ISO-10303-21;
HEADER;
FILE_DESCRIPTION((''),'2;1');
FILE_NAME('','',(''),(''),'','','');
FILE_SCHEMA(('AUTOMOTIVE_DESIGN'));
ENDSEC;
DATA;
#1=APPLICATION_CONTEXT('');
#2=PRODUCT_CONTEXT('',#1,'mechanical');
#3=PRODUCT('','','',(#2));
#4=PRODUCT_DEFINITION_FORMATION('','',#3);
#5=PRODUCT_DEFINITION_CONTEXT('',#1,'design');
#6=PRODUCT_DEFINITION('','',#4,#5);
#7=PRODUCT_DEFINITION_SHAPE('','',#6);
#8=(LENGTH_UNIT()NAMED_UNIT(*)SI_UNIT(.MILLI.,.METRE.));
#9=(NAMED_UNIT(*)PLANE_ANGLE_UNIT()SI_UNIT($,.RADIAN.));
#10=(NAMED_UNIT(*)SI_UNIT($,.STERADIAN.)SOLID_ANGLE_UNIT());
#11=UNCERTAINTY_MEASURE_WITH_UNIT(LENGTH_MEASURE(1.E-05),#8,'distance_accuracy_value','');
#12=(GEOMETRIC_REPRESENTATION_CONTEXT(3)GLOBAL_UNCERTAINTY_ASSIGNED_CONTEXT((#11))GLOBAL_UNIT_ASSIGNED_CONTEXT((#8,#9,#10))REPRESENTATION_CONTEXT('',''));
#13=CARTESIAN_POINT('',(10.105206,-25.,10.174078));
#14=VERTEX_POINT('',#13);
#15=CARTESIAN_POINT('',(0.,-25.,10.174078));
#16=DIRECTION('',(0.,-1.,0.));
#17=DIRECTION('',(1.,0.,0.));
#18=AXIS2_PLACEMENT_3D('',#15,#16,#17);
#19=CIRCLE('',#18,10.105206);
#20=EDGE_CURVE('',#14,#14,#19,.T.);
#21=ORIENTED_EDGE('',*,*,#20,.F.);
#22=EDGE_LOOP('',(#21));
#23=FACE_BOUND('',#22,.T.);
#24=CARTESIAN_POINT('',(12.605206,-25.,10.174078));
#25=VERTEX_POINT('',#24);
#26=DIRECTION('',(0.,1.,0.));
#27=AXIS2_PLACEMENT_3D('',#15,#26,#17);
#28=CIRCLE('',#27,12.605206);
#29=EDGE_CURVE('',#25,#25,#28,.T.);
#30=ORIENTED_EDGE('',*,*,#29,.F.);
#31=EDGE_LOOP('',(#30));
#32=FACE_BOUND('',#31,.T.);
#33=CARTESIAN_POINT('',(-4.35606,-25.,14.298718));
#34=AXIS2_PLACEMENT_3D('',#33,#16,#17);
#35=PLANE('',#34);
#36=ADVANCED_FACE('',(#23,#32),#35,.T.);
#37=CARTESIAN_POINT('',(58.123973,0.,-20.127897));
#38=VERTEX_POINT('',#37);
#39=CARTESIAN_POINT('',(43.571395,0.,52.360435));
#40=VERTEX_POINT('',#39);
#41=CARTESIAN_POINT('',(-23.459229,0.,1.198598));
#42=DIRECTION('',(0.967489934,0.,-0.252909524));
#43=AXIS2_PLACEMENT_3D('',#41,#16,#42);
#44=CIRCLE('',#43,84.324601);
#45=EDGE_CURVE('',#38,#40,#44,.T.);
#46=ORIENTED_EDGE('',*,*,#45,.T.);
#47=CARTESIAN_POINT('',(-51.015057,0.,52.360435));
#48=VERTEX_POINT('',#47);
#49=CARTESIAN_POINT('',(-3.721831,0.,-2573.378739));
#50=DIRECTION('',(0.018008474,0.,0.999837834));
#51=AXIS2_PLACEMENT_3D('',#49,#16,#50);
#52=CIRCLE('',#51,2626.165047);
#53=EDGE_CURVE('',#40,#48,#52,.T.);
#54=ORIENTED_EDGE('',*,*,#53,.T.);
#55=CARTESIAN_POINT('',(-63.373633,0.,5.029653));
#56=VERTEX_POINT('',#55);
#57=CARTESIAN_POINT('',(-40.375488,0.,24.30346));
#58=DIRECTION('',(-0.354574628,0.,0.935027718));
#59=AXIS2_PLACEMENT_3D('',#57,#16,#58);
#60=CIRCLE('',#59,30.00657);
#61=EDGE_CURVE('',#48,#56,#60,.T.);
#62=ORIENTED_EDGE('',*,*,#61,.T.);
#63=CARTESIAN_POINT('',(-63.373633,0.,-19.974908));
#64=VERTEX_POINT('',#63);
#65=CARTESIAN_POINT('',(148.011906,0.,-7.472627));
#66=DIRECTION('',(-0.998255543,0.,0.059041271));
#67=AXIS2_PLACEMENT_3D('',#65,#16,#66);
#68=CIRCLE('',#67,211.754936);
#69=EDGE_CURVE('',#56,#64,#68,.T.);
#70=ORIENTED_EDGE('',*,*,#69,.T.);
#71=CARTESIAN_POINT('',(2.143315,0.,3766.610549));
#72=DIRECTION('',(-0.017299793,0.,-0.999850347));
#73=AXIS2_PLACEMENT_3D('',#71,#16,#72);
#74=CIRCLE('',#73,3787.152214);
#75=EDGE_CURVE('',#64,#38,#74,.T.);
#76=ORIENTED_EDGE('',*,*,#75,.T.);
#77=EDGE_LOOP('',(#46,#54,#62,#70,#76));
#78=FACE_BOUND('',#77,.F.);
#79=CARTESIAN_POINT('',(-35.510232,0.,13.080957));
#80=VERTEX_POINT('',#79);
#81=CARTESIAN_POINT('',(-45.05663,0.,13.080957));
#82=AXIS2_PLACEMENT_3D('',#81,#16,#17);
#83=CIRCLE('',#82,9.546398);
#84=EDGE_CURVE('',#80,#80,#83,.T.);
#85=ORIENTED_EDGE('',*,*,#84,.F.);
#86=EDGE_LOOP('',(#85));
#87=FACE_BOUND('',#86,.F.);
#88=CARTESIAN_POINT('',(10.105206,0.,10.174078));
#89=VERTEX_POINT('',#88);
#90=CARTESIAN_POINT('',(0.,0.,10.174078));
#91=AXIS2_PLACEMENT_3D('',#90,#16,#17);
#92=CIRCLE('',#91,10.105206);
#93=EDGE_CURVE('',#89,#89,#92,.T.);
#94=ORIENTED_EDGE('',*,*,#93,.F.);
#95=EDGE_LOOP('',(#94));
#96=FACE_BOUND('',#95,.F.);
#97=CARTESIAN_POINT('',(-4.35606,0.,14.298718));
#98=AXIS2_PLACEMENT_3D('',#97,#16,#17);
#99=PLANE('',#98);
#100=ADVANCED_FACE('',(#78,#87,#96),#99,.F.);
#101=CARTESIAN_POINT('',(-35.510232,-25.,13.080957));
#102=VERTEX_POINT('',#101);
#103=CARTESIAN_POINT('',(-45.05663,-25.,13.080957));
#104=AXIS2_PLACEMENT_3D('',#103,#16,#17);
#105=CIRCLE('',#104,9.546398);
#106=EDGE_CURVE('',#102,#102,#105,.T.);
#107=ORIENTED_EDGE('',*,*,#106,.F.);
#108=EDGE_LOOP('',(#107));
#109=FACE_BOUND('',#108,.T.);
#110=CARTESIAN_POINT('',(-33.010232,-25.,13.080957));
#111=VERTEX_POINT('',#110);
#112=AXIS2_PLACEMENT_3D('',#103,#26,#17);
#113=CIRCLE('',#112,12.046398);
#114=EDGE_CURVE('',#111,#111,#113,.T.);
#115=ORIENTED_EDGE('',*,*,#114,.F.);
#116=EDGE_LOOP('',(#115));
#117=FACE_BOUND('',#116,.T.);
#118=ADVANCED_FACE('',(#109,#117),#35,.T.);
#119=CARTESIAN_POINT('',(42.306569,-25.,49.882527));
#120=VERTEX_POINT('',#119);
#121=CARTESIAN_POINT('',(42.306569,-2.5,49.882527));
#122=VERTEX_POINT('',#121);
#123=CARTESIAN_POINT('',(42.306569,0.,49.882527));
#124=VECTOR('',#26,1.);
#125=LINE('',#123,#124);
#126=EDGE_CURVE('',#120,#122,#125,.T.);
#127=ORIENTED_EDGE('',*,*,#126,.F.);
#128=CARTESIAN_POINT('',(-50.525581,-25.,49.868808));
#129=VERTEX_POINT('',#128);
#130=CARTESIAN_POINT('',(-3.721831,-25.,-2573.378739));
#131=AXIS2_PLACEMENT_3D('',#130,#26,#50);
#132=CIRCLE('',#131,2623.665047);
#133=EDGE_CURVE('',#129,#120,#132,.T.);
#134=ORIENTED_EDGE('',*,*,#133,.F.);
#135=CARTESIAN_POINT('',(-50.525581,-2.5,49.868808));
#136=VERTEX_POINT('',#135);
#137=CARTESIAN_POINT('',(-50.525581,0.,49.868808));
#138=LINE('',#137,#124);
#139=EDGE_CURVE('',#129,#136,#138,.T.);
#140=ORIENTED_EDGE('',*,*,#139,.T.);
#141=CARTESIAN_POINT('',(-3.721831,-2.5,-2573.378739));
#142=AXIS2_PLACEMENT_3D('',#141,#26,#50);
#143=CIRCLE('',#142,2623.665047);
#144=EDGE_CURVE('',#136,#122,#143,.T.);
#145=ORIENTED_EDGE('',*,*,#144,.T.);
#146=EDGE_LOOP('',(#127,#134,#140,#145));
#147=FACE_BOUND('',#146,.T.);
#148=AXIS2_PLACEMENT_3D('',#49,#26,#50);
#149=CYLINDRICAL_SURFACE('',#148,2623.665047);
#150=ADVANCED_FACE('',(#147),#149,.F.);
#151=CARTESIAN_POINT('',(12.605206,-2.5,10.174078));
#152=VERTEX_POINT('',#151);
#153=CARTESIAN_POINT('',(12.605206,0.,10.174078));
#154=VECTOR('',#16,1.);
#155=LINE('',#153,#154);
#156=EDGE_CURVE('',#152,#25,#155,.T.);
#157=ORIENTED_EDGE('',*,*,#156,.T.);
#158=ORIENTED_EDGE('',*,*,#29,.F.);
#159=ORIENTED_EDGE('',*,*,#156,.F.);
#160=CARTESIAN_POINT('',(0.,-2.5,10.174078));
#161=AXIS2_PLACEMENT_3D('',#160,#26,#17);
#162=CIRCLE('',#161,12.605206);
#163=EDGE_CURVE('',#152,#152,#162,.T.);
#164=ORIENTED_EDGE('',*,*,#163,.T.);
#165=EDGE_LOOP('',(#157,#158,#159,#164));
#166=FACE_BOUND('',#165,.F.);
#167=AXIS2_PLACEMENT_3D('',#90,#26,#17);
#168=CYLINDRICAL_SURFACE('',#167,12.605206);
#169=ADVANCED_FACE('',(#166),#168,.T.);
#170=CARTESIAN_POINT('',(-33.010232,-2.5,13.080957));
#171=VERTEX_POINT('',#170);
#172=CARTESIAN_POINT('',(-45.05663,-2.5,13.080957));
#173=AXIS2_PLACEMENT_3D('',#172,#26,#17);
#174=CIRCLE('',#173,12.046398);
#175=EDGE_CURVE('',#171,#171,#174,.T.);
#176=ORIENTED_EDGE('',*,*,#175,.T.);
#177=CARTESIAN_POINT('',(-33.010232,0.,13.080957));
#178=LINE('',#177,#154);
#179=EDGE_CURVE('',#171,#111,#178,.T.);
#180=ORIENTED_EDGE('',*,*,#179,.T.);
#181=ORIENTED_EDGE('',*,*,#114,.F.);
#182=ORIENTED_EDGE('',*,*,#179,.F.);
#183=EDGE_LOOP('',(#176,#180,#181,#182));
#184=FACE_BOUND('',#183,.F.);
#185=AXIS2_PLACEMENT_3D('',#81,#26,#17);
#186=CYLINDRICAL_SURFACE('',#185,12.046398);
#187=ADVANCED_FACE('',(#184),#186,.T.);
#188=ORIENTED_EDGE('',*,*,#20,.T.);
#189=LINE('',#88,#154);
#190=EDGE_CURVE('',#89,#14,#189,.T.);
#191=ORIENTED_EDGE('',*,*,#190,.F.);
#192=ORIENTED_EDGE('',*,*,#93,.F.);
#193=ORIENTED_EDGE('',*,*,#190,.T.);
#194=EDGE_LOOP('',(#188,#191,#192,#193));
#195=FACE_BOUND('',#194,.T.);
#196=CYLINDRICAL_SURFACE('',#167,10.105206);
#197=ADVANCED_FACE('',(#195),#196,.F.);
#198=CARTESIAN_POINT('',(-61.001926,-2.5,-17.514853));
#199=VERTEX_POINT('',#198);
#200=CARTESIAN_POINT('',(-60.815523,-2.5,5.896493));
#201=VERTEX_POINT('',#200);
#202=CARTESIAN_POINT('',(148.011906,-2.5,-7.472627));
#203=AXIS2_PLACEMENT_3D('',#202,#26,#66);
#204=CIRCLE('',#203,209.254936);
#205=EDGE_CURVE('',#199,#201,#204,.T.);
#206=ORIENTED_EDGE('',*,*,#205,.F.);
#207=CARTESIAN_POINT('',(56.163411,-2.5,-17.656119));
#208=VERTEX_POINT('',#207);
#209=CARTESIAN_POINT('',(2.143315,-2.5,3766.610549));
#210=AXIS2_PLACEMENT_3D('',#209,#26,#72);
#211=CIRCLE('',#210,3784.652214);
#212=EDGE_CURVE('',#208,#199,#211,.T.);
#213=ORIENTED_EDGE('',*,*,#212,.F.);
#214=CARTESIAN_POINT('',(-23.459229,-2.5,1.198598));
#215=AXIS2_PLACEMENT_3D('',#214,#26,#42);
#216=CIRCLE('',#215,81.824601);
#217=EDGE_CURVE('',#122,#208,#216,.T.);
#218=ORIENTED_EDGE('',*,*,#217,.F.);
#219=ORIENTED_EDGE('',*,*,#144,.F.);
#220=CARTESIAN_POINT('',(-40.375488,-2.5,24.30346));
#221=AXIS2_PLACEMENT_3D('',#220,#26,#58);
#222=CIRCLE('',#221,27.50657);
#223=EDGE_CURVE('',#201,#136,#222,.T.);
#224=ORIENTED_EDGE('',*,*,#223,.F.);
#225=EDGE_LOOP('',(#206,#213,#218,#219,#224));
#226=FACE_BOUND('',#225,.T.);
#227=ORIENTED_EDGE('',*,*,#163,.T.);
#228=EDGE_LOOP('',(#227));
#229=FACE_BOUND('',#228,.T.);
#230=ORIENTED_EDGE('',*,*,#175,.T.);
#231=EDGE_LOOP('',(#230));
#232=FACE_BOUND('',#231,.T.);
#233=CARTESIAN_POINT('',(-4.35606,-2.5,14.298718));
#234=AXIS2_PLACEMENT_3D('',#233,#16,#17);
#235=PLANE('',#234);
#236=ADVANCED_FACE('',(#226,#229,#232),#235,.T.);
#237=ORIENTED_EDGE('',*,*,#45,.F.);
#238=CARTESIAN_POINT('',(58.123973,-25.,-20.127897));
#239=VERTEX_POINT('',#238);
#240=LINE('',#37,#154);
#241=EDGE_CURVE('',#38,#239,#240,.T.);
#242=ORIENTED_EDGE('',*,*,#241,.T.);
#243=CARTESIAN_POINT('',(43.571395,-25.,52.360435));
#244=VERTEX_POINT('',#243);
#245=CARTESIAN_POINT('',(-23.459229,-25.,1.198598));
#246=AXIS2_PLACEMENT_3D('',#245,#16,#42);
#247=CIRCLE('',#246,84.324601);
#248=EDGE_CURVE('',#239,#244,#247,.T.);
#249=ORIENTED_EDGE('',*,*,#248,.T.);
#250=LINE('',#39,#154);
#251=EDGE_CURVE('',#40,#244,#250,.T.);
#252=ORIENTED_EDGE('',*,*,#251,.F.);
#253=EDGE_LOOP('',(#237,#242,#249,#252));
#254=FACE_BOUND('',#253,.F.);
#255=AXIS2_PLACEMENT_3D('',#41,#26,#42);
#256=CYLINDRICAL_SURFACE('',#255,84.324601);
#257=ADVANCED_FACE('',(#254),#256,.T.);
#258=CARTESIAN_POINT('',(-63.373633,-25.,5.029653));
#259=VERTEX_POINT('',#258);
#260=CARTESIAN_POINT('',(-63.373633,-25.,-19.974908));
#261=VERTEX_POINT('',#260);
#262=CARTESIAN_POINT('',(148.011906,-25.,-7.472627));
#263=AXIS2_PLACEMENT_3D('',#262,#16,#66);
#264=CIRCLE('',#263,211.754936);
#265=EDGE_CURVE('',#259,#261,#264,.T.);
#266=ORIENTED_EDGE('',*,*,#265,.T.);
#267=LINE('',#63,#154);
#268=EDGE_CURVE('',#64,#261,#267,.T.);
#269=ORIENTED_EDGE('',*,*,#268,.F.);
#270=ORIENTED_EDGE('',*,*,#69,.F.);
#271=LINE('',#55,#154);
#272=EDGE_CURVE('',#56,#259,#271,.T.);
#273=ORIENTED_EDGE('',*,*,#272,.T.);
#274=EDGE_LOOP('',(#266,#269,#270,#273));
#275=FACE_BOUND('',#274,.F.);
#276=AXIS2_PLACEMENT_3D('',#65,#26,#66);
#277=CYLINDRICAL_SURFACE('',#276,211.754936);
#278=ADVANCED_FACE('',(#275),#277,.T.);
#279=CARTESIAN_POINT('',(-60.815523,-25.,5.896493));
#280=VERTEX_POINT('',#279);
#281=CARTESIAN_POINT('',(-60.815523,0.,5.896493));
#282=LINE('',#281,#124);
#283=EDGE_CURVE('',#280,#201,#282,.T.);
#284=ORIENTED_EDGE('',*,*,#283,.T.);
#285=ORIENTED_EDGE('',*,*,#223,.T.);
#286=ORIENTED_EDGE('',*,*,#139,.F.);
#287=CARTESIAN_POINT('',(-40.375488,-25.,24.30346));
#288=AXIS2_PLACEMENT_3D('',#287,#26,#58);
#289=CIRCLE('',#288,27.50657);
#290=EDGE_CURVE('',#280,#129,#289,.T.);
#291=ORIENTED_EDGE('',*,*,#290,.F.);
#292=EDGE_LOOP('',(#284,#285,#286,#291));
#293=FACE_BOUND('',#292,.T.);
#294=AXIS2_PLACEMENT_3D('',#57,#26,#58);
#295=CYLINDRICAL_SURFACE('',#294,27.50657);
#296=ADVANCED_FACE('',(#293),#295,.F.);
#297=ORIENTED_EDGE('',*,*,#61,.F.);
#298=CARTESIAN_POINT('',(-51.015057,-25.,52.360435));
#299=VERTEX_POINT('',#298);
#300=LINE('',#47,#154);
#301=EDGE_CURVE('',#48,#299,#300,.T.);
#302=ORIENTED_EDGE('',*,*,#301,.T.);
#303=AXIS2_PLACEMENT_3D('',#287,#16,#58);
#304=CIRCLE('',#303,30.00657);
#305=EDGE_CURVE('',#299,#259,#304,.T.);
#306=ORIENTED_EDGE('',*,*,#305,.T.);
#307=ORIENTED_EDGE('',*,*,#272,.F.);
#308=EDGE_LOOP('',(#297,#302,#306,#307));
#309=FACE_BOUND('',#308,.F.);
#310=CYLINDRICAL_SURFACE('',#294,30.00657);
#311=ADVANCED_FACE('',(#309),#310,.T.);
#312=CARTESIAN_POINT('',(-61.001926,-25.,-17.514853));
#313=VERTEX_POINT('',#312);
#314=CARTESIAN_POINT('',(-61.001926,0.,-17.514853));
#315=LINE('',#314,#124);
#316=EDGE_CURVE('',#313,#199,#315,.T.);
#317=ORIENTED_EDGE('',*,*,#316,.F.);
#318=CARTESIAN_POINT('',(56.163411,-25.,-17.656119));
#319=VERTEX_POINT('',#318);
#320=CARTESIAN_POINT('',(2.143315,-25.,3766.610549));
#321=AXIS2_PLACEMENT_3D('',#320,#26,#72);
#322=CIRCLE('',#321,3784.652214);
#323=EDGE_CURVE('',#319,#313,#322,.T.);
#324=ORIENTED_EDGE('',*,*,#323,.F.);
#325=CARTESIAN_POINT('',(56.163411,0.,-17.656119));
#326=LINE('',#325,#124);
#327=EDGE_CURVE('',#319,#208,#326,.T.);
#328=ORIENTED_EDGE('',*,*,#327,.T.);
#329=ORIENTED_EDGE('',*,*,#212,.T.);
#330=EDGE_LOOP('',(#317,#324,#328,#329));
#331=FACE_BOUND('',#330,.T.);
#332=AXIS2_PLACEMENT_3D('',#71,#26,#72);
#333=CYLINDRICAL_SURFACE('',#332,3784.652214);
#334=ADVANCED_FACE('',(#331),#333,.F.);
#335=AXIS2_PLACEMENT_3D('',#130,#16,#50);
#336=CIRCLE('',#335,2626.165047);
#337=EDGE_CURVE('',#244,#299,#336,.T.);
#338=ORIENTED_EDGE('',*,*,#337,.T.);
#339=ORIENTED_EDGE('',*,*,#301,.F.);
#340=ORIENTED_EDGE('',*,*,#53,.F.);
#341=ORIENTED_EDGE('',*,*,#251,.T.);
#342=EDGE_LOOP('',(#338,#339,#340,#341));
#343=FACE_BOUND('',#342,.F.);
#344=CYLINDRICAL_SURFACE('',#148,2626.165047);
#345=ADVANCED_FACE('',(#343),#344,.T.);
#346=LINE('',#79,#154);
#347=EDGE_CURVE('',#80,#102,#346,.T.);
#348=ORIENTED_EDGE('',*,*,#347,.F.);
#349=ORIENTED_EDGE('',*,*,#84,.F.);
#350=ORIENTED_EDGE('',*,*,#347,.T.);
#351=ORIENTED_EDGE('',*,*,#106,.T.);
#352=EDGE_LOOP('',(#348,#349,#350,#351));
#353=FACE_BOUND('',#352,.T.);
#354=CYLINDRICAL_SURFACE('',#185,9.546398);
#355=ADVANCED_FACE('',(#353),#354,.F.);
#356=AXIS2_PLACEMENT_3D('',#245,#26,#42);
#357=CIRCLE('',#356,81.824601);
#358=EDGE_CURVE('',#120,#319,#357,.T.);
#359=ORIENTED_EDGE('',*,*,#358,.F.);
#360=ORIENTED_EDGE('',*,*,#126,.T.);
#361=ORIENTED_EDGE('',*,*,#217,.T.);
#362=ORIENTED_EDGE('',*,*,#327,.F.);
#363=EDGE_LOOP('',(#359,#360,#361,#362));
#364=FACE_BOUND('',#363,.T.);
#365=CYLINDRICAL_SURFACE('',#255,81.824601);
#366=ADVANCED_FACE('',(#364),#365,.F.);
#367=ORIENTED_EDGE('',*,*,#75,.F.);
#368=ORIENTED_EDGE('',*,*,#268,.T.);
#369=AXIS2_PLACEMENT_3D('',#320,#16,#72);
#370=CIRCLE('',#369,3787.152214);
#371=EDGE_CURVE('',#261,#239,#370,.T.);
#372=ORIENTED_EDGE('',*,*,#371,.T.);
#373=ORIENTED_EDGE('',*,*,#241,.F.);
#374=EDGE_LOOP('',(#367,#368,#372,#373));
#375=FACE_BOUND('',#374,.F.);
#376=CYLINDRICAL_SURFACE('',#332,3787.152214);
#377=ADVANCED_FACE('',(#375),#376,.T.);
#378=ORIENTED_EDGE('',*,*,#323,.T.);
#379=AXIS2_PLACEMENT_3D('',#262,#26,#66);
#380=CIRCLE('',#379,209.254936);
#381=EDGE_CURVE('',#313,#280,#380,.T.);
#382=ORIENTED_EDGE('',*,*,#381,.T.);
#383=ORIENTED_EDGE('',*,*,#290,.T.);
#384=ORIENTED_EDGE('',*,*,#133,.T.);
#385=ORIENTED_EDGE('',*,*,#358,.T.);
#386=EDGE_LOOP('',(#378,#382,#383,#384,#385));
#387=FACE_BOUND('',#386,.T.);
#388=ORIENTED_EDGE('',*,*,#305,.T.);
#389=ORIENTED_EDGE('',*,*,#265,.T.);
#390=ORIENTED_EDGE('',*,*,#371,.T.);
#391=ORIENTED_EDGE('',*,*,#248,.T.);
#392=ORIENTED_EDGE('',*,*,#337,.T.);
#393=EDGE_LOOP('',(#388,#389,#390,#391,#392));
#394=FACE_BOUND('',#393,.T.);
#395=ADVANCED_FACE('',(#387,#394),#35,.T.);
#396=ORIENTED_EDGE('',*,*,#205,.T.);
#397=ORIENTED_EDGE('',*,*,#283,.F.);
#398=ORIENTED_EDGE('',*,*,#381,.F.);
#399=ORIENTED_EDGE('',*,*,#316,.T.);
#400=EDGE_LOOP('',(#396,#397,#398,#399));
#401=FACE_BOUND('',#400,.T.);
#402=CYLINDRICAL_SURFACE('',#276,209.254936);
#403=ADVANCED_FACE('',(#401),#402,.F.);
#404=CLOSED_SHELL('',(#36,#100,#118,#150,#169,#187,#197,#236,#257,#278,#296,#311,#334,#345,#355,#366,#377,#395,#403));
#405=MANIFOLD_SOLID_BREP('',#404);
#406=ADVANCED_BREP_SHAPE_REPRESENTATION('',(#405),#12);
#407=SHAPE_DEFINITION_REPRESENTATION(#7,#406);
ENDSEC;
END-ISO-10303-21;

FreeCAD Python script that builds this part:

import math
import FreeCAD as App
import Part
import Sketcher
from FreeCAD import Vector
Q = App.Units.Quantity


def faces_at(feature, points):
    """Names of the faces that lie closest to the given points."""
    faces = feature.Shape.Faces
    near = lambda p: min(range(len(faces)), key=lambda i: faces[i].distToShape(Part.Vertex(*p))[0])
    return sorted({f"Face{near(p) + 1}" for p in points})

doc = App.newDocument("Part")
body = doc.addObject("PartDesign::Body", "Body")

sketch1 = doc.addObject("Sketcher::SketchObject", "Sketch")
body.addObject(sketch1)
sketch1.AttachmentSupport = (doc.XZ_Plane, [""])
sketch1.MapMode = "FlatFace"
sketch1.addGeometry([
    Part.ArcOfCircle(Part.Circle(Vector(2, 3767, 0), Vector(0, 0, 1), 3787), math.radians(-90.99), math.radians(-89.15)),
    Part.ArcOfCircle(Part.Circle(Vector(-23, 1, 0), Vector(0, 0, 1), 84), math.radians(-15), math.radians(37)),
    Part.ArcOfCircle(Part.Circle(Vector(-4, -2573, 0), Vector(0, 0, 1), 2626), math.radians(88.97), math.radians(91.03)),
    Part.ArcOfCircle(Part.Circle(Vector(-40, 24, 0), Vector(0, 0, 1), 30), math.radians(111), math.radians(220)),
    Part.ArcOfCircle(Part.Circle(Vector(148, -7, 0), Vector(0, 0, 1), 212), math.radians(176.62), math.radians(183.38)),
    Part.Circle(Vector(0, 10, 0), Vector(0, 0, 1), 10),
    Part.Circle(Vector(-45, 13, 0), Vector(0, 0, 1), 10),
], False)
sketch1.addConstraint([
    Sketcher.Constraint("Coincident", 0, 2, 1, 1),
    Sketcher.Constraint("Coincident", 1, 2, 2, 1),
    Sketcher.Constraint("Coincident", 2, 2, 3, 1),
    Sketcher.Constraint("Coincident", 3, 2, 4, 1),
    Sketcher.Constraint("Coincident", 4, 2, 0, 1),
    Sketcher.Constraint("PointOnObject", 5, 3, -2),
    Sketcher.Constraint("Vertical", 3, 2, 4, 2),
    Sketcher.Constraint("Radius", 1, Q("84.324601 mm")),
    Sketcher.Constraint("Radius", 3, Q("30.00657 mm")),
    Sketcher.Constraint("Diameter", 5, Q("20.210412 mm")),
    Sketcher.Constraint("Diameter", 6, Q("19.092796 mm")),
    Sketcher.Constraint("Radius", 0, Q("3787.152214 mm")),
    Sketcher.Constraint("Radius", 2, Q("2626.165047 mm")),
    Sketcher.Constraint("Radius", 4, Q("211.754936 mm")),
    Sketcher.Constraint("DistanceX", 1, 3, 2, 3, Q("19.737399 mm")),
    Sketcher.Constraint("DistanceY", 2, 3, 3, 3, Q("2597.682198 mm")),
    Sketcher.Constraint("DistanceX", 6, 3, 1, 3, Q("21.5974 mm")),
    Sketcher.Constraint("DistanceY", -1, 1, 0, 3, Q("3766.610549 mm")),
    Sketcher.Constraint("DistanceX", 1, 3, -1, 1, Q("23.459229 mm")),
    Sketcher.Constraint("DistanceY", 2, 3, -1, 1, Q("2573.378739 mm")),
    Sketcher.Constraint("DistanceX", 3, 3, -1, 1, Q("40.375488 mm")),
    Sketcher.Constraint("DistanceY", 1, 3, 0, 3, Q("3765.411952 mm")),
    Sketcher.Constraint("DistanceY", 2, 3, 4, 3, Q("2565.906111 mm")),
    Sketcher.Constraint("DistanceX", 0, 3, 4, 3, Q("145.868591 mm")),
    Sketcher.Constraint("DistanceY", 1, 3, 5, 3, Q("8.97548 mm")),
    Sketcher.Constraint("DistanceY", 1, 3, 6, 3, Q("11.88236 mm")),
])
pad1 = doc.addObject("PartDesign::Pad", "Pad")
body.addObject(pad1)
pad1.Profile = sketch1
pad1.Length = 25
doc.recompute()

thickness = doc.addObject("PartDesign::Thickness", "Thickness")
body.addObject(thickness)
thickness.Base = (pad1, faces_at(pad1, [(-31.008, -25, 1.457)]))
thickness.Value = 2.5
thickness.Reversed = True
thickness.Join = "Intersection"

doc.recompute()
